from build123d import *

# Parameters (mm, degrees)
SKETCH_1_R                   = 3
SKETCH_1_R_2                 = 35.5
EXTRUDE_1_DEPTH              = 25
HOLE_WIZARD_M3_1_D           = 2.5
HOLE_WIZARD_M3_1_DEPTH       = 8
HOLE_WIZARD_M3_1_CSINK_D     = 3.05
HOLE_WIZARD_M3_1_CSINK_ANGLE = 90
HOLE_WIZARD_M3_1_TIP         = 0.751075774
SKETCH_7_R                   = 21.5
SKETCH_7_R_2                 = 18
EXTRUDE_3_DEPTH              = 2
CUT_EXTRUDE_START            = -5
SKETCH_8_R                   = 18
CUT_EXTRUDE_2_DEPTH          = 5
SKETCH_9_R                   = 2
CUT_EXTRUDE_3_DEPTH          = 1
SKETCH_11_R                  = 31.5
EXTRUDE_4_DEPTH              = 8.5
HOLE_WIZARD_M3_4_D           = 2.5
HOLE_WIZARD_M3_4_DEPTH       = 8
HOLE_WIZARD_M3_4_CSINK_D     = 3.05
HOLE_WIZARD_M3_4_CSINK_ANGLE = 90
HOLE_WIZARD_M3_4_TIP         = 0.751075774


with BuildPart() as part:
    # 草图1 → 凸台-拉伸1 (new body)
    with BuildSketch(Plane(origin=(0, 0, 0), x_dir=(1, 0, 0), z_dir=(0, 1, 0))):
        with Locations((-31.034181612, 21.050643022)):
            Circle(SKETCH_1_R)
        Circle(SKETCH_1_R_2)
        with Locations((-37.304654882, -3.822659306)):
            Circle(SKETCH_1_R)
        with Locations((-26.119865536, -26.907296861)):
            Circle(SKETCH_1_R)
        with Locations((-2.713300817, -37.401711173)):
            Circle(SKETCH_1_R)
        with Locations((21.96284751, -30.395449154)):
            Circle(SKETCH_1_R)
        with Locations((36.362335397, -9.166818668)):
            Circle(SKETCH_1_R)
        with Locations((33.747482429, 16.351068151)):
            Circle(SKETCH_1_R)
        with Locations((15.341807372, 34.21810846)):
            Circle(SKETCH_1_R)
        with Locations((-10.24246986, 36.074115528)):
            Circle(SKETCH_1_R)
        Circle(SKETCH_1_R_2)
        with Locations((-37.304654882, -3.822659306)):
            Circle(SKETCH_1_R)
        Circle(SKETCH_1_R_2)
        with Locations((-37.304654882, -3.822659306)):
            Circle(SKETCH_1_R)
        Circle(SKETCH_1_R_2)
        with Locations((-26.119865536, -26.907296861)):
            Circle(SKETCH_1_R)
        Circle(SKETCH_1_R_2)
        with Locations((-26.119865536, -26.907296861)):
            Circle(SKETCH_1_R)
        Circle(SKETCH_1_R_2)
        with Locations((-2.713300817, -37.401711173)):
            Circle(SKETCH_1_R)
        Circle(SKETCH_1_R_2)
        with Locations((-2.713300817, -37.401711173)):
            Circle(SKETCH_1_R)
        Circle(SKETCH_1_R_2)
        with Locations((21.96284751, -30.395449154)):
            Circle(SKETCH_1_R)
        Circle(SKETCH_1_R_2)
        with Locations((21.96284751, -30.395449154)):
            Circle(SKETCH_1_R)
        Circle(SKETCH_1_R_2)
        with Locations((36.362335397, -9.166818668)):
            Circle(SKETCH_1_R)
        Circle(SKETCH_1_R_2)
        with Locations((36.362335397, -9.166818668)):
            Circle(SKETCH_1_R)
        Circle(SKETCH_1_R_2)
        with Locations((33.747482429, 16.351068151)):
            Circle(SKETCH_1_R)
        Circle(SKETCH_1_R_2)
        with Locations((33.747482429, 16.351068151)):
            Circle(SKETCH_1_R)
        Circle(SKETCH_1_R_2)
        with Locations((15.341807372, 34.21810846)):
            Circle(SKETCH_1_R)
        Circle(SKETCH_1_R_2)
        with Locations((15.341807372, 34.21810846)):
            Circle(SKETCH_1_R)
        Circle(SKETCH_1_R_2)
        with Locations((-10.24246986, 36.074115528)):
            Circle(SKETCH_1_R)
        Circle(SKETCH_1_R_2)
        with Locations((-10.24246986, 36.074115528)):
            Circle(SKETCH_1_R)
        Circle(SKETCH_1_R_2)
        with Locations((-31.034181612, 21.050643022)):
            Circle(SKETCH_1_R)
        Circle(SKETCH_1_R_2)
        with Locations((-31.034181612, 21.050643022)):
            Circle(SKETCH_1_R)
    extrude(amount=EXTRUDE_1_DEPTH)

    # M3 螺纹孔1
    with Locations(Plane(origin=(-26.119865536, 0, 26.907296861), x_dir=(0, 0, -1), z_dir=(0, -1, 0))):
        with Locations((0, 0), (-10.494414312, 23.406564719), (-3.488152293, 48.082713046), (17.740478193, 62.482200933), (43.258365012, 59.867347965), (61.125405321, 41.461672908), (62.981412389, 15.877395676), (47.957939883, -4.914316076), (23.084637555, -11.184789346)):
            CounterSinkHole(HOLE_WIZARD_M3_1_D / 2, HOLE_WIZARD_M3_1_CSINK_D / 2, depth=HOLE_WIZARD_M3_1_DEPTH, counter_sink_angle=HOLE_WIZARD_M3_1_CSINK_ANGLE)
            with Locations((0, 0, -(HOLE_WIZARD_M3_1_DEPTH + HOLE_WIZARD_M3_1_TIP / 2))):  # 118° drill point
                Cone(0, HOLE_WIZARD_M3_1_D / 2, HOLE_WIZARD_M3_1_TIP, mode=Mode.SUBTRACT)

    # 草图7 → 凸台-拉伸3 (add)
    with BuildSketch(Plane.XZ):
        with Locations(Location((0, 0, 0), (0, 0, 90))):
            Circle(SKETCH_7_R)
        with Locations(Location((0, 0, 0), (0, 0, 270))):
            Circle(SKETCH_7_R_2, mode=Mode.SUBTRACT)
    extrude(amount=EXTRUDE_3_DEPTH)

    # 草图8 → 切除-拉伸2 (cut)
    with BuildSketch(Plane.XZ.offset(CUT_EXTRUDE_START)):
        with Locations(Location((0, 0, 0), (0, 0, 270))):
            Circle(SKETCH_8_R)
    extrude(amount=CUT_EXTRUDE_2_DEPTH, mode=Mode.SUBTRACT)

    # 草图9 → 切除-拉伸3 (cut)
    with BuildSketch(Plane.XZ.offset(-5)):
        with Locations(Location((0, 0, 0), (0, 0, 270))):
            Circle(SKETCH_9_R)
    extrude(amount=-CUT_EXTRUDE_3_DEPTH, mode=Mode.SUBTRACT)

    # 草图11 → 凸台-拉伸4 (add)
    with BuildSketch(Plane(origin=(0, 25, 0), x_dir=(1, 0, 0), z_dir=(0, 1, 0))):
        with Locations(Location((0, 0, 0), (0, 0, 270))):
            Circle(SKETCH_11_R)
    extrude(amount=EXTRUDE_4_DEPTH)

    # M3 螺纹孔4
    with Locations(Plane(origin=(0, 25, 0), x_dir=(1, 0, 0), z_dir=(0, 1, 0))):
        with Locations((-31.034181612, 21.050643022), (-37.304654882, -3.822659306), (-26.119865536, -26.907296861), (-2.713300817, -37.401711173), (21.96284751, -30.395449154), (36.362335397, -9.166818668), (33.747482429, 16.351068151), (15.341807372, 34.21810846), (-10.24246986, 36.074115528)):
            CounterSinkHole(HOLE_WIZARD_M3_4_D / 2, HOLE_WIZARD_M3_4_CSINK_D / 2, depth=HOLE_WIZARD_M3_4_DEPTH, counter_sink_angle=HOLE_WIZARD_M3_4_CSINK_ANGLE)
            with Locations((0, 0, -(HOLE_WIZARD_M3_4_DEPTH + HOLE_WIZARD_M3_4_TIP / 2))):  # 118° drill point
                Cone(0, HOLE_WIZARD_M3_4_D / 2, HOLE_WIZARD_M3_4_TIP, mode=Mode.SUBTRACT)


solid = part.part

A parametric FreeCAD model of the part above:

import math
import FreeCAD as App
import Part
import Sketcher
from FreeCAD import Vector

doc = App.newDocument("Part")
body = doc.addObject("PartDesign::Body", "Body")

# Sketch on XZ plane
sketch1 = body.newObject("Sketcher::SketchObject", "Sketch")
sketch1.AttachmentSupport = (doc.getObject("XZ_Plane"), [""])
sketch1.MapMode = "FlatFace"
sketch1.addGeometry([
    Part.ArcOfCircle(Part.Circle(Vector(0, 0, 0), Vector(0, 0, 1), 35.5), math.radians(-142.338826), math.radians(-109.362686)),  # 0
    Part.ArcOfCircle(Part.Circle(Vector(-31.034182, -21.050643, 0), Vector(0, 0, 1), 3), math.radians(80.607025), math.radians(347.691463)),  # 1
    Part.ArcOfCircle(Part.Circle(Vector(0, 0, 0), Vector(0, 0, 1), 35.5), math.radians(177.661174), math.radians(210.637314)),  # 2
    Part.ArcOfCircle(Part.Circle(Vector(-37.304655, 3.822659, 0), Vector(0, 0, 1), 3), math.radians(40.607025), math.radians(307.691463)),  # 3
    Part.ArcOfCircle(Part.Circle(Vector(0, 0, 0), Vector(0, 0, 1), 35.5), math.radians(137.661174), math.radians(170.637314)),  # 4
    Part.ArcOfCircle(Part.Circle(Vector(-26.119866, 26.907297, 0), Vector(0, 0, 1), 3), math.radians(0.607025), math.radians(267.691463)),  # 5
    Part.ArcOfCircle(Part.Circle(Vector(0, 0, 0), Vector(0, 0, 1), 35.5), math.radians(97.661174), math.radians(130.637314)),  # 6
    Part.ArcOfCircle(Part.Circle(Vector(-2.713301, 37.401711, 0), Vector(0, 0, 1), 3), math.radians(-39.392975), math.radians(227.691463)),  # 7
    Part.ArcOfCircle(Part.Circle(Vector(0, 0, 0), Vector(0, 0, 1), 35.5), math.radians(57.661174), math.radians(90.637314)),  # 8
    Part.ArcOfCircle(Part.Circle(Vector(21.962848, 30.395449, 0), Vector(0, 0, 1), 3), math.radians(-79.392975), math.radians(187.691463)),  # 9
    Part.ArcOfCircle(Part.Circle(Vector(0, 0, 0), Vector(0, 0, 1), 35.5), math.radians(17.661174), math.radians(50.637314)),  # 10
    Part.ArcOfCircle(Part.Circle(Vector(36.362335, 9.166819, 0), Vector(0, 0, 1), 3), math.radians(-119.392975), math.radians(147.691463)),  # 11
    Part.ArcOfCircle(Part.Circle(Vector(0, 0, 0), Vector(0, 0, 1), 35.5), math.radians(-22.338826), math.radians(10.637314)),  # 12
    Part.ArcOfCircle(Part.Circle(Vector(33.747482, -16.351068, 0), Vector(0, 0, 1), 3), math.radians(-159.392975), math.radians(107.691463)),  # 13
    Part.ArcOfCircle(Part.Circle(Vector(0, 0, 0), Vector(0, 0, 1), 35.5), math.radians(-62.338826), math.radians(-29.362686)),  # 14
    Part.ArcOfCircle(Part.Circle(Vector(15.341807, -34.218108, 0), Vector(0, 0, 1), 3), math.radians(160.607025), math.radians(427.691463)),  # 15
    Part.ArcOfCircle(Part.Circle(Vector(0, 0, 0), Vector(0, 0, 1), 35.5), math.radians(-102.338826), math.radians(-69.362686)),  # 16
    Part.ArcOfCircle(Part.Circle(Vector(-10.24247, -36.074116, 0), Vector(0, 0, 1), 3), math.radians(120.607025), math.radians(387.691463)),  # 17
], False)
sketch1.addConstraint([
    Sketcher.Constraint("Coincident", 0, 1, 1, 2),
    Sketcher.Constraint("Coincident", 1, 1, 2, 2),
    Sketcher.Constraint("Coincident", 2, 1, 3, 2),
    Sketcher.Constraint("Coincident", 3, 1, 4, 2),
    Sketcher.Constraint("Coincident", 4, 1, 5, 2),
    Sketcher.Constraint("Coincident", 5, 1, 6, 2),
    Sketcher.Constraint("Coincident", 6, 1, 7, 2),
    Sketcher.Constraint("Coincident", 7, 1, 8, 2),
    Sketcher.Constraint("Coincident", 8, 1, 9, 2),
    Sketcher.Constraint("Coincident", 9, 1, 10, 2),
    Sketcher.Constraint("Coincident", 10, 1, 11, 2),
    Sketcher.Constraint("Coincident", 11, 1, 12, 2),
    Sketcher.Constraint("Coincident", 12, 1, 13, 2),
    Sketcher.Constraint("Coincident", 13, 1, 14, 2),
    Sketcher.Constraint("Coincident", 14, 1, 15, 2),
    Sketcher.Constraint("Coincident", 15, 1, 16, 2),
    Sketcher.Constraint("Coincident", 16, 1, 17, 2),
    Sketcher.Constraint("Coincident", 17, 1, 0, 2),
    Sketcher.Constraint("Coincident", 0, 3, -1, 1),
    Sketcher.Constraint("Coincident", 2, 3, -1, 1),
    Sketcher.Constraint("Coincident", 4, 3, -1, 1),
    Sketcher.Constraint("Coincident", 6, 3, -1, 1),
    Sketcher.Constraint("Coincident", 8, 3, -1, 1),
    Sketcher.Constraint("Coincident", 10, 3, -1, 1),
    Sketcher.Constraint("Coincident", 12, 3, -1, 1),
    Sketcher.Constraint("Coincident", 14, 3, -1, 1),
    Sketcher.Constraint("Coincident", 16, 3, -1, 1),
    Sketcher.Constraint("Equal", 0, 2),
    Sketcher.Constraint("Equal", 1, 3),
    Sketcher.Constraint("Equal", 2, 4),
    Sketcher.Constraint("Equal", 3, 5),
    Sketcher.Constraint("Equal", 4, 6),
    Sketcher.Constraint("Equal", 5, 7),
    Sketcher.Constraint("Equal", 6, 8),
    Sketcher.Constraint("Equal", 7, 9),
    Sketcher.Constraint("Equal", 8, 10),
    Sketcher.Constraint("Equal", 9, 11),
    Sketcher.Constraint("Equal", 10, 12),
    Sketcher.Constraint("Equal", 11, 13),
    Sketcher.Constraint("Equal", 12, 14),
    Sketcher.Constraint("Equal", 13, 15),
    Sketcher.Constraint("Equal", 14, 16),
    Sketcher.Constraint("Equal", 15, 17),
    Sketcher.Constraint("Radius", 1, 3.0),
    Sketcher.Constraint("Radius", 0, 35.5),
    Sketcher.Constraint("DistanceX", 5, 3, 7, 1, 25.724999),
    Sketcher.Constraint("DistanceY", 9, 1, 7, 3, 9.955),
    Sketcher.Constraint("DistanceX", 15, 3, 12, 1, 17.494002),
    Sketcher.Constraint("DistanceX", 7, 3, -1, 1, 2.713301),
    Sketcher.Constraint("DistanceY", 3, 3, 3, 1, 1.952602),
    Sketcher.Constraint("DistanceX", 3, 1, 1, 3, 3.992899),
    Sketcher.Constraint("DistanceY", 12, 1, 10, 1, 24.263201),
    Sketcher.Constraint("DistanceY", 14, 1, 12, 1, 17.949701),
    Sketcher.Constraint("DistanceX", 16, 1, 15, 1, 20.098098),
    Sketcher.Constraint("DistanceX", 1, 3, -1, 1, 31.034182),
    Sketcher.Constraint("DistanceY", -1, 1, 7, 3, 37.401711),
    Sketcher.Constraint("DistanceY", -1, 1, 9, 3, 30.395449),
    Sketcher.Constraint("DistanceY", -1, 1, 11, 3, 9.166819),
    Sketcher.Constraint("DistanceY", 13, 3, -1, 1, 16.351068),
    Sketcher.Constraint("DistanceY", 15, 3, -1, 1, 34.218108),
    Sketcher.Constraint("DistanceX", 17, 3, -1, 1, 10.24247),
    Sketcher.Constraint("DistanceX", 0, 1, -1, 1, 28.10314),
    Sketcher.Constraint("DistanceY", -1, 1, 4, 1, 23.909732),
])
pad1 = body.newObject("PartDesign::Pad", "Pad")
pad1.Profile = sketch1
pad1.Length = 25
pad1.Reversed = True

# Sketch on XZ plane
sketch2 = body.newObject("Sketcher::SketchObject", "Sketch001")
sketch2.AttachmentSupport = (doc.getObject("XZ_Plane"), [""])
sketch2.MapMode = "FlatFace"
sketch2.addGeometry([
    Part.Circle(Vector(-26.119866, 26.907297, 0), Vector(0, 0, 1), 1.25),  # 0
    Part.Circle(Vector(-2.713301, 37.401711, 0), Vector(0, 0, 1), 1.25),  # 1
    Part.Circle(Vector(21.962848, 30.395449, 0), Vector(0, 0, 1), 1.25),  # 2
    Part.Circle(Vector(36.362335, 9.166819, 0), Vector(0, 0, 1), 1.25),  # 3
    Part.Circle(Vector(33.747482, -16.351068, 0), Vector(0, 0, 1), 1.25),  # 4
    Part.Circle(Vector(15.341807, -34.218108, 0), Vector(0, 0, 1), 1.25),  # 5
    Part.Circle(Vector(-10.24247, -36.074116, 0), Vector(0, 0, 1), 1.25),  # 6
    Part.Circle(Vector(-31.034182, -21.050643, 0), Vector(0, 0, 1), 1.25),  # 7
    Part.Circle(Vector(-37.304655, 3.822659, 0), Vector(0, 0, 1), 1.25),  # 8
], False)
sketch2.addConstraint([
    Sketcher.Constraint("Equal", 0, 1),
    Sketcher.Constraint("Equal", 1, 2),
    Sketcher.Constraint("Equal", 2, 3),
    Sketcher.Constraint("Equal", 3, 4),
    Sketcher.Constraint("Equal", 4, 5),
    Sketcher.Constraint("Equal", 5, 6),
    Sketcher.Constraint("Equal", 6, 7),
    Sketcher.Constraint("Equal", 7, 8),
    Sketcher.Constraint("Diameter", 0, 2.5),
    Sketcher.Constraint("DistanceX", 1, 3, -1, 1, 2.713301),
    Sketcher.Constraint("DistanceX", 0, 3, 3, 3, 62.482201),
    Sketcher.Constraint("DistanceY", -1, 1, 1, 3, 37.401711),
    Sketcher.Constraint("DistanceY", -1, 1, 2, 3, 30.395449),
    Sketcher.Constraint("DistanceY", -1, 1, 3, 3, 9.166819),
    Sketcher.Constraint("DistanceY", 4, 3, -1, 1, 16.351068),
    Sketcher.Constraint("DistanceY", 5, 3, -1, 1, 34.218108),
    Sketcher.Constraint("DistanceX", 6, 3, -1, 1, 10.24247),
    Sketcher.Constraint("DistanceX", 7, 3, -1, 1, 31.034182),
    Sketcher.Constraint("DistanceY", -1, 1, 8, 3, 3.822659),
    Sketcher.Constraint("DistanceX", 1, 3, 2, 3, 24.676148),
    Sketcher.Constraint("DistanceY", 3, 3, 0, 3, 17.740478),
    Sketcher.Constraint("DistanceX", 5, 3, 3, 3, 21.020528),
    Sketcher.Constraint("DistanceX", 5, 3, 2, 3, 6.62104),
    Sketcher.Constraint("DistanceY", 7, 3, 0, 3, 47.95794),
    Sketcher.Constraint("DistanceX", 8, 3, 0, 3, 11.184789),
    Sketcher.Constraint("DistanceX", -1, 1, 4, 3, 33.747482),
    Sketcher.Constraint("DistanceY", 6, 3, -1, 1, 36.074116),
])
doc.recompute()
hole = body.newObject("PartDesign::Hole", "Hole")
hole.Profile = sketch2
hole.ThreadType = "None"
hole.Diameter = 2.5
hole.DepthType = "Dimension"
hole.Depth = 8
hole.DrillPoint = "Angled"
hole.DrillPointAngle = 118
hole.HoleCutType = "Countersink"
hole.HoleCutDiameter = 3.05
hole.HoleCutCountersinkAngle = 90

# Sketch on XZ plane
sketch3 = body.newObject("Sketcher::SketchObject", "Sketch002")
sketch3.AttachmentSupport = (doc.getObject("XZ_Plane"), [""])
sketch3.MapMode = "FlatFace"
sketch3.addGeometry([
    Part.Circle(Vector(0, 0, 0), Vector(0, 0, 1), 21.5),
    Part.Circle(Vector(0, 0, 0), Vector(0, 0, 1), 18),
], False)
sketch3.addConstraint([
    Sketcher.Constraint("Coincident", 0, 3, -1, 1),
    Sketcher.Constraint("Coincident", 1, 3, -1, 1),
    Sketcher.Constraint("Diameter", 0, 43.0),
    Sketcher.Constraint("Diameter", 1, 36.0),
])
pad2 = body.newObject("PartDesign::Pad", "Pad001")
pad2.Profile = sketch3
pad2.Length = 2

# Sketch on XZ plane
sketch4 = body.newObject("Sketcher::SketchObject", "Sketch003")
sketch4.AttachmentSupport = (doc.getObject("XZ_Plane"), [""])
sketch4.MapMode = "FlatFace"
sketch4.AttachmentOffset = App.Placement(Vector(0, 0, -5), App.Rotation())
sketch4.addGeometry(Part.Circle(Vector(0, 0, 0), Vector(0, 0, 1), 18), False)
sketch4.addConstraint([
    Sketcher.Constraint("Coincident", 0, 3, -1, 1),
    Sketcher.Constraint("Diameter", 0, 36.0),
])
pocket1 = body.newObject("PartDesign::Pocket", "Pocket")
pocket1.Profile = sketch4
pocket1.Length = 5
pocket1.Reversed = True

# Sketch on XZ plane
sketch5 = body.newObject("Sketcher::SketchObject", "Sketch004")
sketch5.AttachmentSupport = (doc.getObject("XZ_Plane"), [""])
sketch5.MapMode = "FlatFace"
sketch5.AttachmentOffset = App.Placement(Vector(0, 0, -5), App.Rotation())
sketch5.addGeometry(Part.Circle(Vector(0, 0, 0), Vector(0, 0, 1), 2), False)
sketch5.addConstraint([
    Sketcher.Constraint("Coincident", 0, 3, -1, 1),
    Sketcher.Constraint("Diameter", 0, 4.0),
])
pocket2 = body.newObject("PartDesign::Pocket", "Pocket001")
pocket2.Profile = sketch5
pocket2.Length = 1

# Sketch on XZ plane
sketch6 = body.newObject("Sketcher::SketchObject", "Sketch005")
sketch6.AttachmentSupport = (doc.getObject("XZ_Plane"), [""])
sketch6.MapMode = "FlatFace"
sketch6.AttachmentOffset = App.Placement(Vector(0, 0, -25), App.Rotation())
sketch6.addGeometry(Part.Circle(Vector(0, 0, 0), Vector(0, 0, 1), 31.5), False)
sketch6.addConstraint([
    Sketcher.Constraint("Coincident", 0, 3, -1, 1),
    Sketcher.Constraint("Diameter", 0, 63.0),
])
pad3 = body.newObject("PartDesign::Pad", "Pad002")
pad3.Profile = sketch6
pad3.Length = 8.5
pad3.Reversed = True

# Sketch on XZ plane
sketch7 = body.newObject("Sketcher::SketchObject", "Sketch006")
sketch7.AttachmentSupport = (doc.getObject("XZ_Plane"), [""])
sketch7.MapMode = "FlatFace"
sketch7.AttachmentOffset = App.Placement(Vector(0, 0, -25), App.Rotation())
sketch7.addGeometry([
    Part.Circle(Vector(-31.034182, -21.050643, 0), Vector(0, 0, 1), 1.25),  # 0
    Part.Circle(Vector(-37.304655, 3.822659, 0), Vector(0, 0, 1), 1.25),  # 1
    Part.Circle(Vector(-26.119866, 26.907297, 0), Vector(0, 0, 1), 1.25),  # 2
    Part.Circle(Vector(-2.713301, 37.401711, 0), Vector(0, 0, 1), 1.25),  # 3
    Part.Circle(Vector(21.962848, 30.395449, 0), Vector(0, 0, 1), 1.25),  # 4
    Part.Circle(Vector(36.362335, 9.166819, 0), Vector(0, 0, 1), 1.25),  # 5
    Part.Circle(Vector(33.747482, -16.351068, 0), Vector(0, 0, 1), 1.25),  # 6
    Part.Circle(Vector(15.341807, -34.218108, 0), Vector(0, 0, 1), 1.25),  # 7
    Part.Circle(Vector(-10.24247, -36.074116, 0), Vector(0, 0, 1), 1.25),  # 8
], False)
sketch7.addConstraint([
    Sketcher.Constraint("Equal", 0, 1),
    Sketcher.Constraint("Equal", 1, 2),
    Sketcher.Constraint("Equal", 2, 3),
    Sketcher.Constraint("Equal", 3, 4),
    Sketcher.Constraint("Equal", 4, 5),
    Sketcher.Constraint("Equal", 5, 6),
    Sketcher.Constraint("Equal", 6, 7),
    Sketcher.Constraint("Equal", 7, 8),
    Sketcher.Constraint("Diameter", 0, 2.5),
    Sketcher.Constraint("DistanceX", 3, 3, -1, 1, 2.713301),
    Sketcher.Constraint("DistanceX", 2, 3, 5, 3, 62.482201),
    Sketcher.Constraint("DistanceX", 0, 3, -1, 1, 31.034182),
    Sketcher.Constraint("DistanceY", -1, 1, 1, 3, 3.822659),
    Sketcher.Constraint("DistanceY", -1, 1, 3, 3, 37.401711),
    Sketcher.Constraint("DistanceY", -1, 1, 4, 3, 30.395449),
    Sketcher.Constraint("DistanceY", -1, 1, 5, 3, 9.166819),
    Sketcher.Constraint("DistanceY", 6, 3, -1, 1, 16.351068),
    Sketcher.Constraint("DistanceY", 7, 3, -1, 1, 34.218108),
    Sketcher.Constraint("DistanceX", 8, 3, -1, 1, 10.24247),
    Sketcher.Constraint("DistanceX", 1, 3, 2, 3, 11.184789),
    Sketcher.Constraint("DistanceY", 0, 3, 2, 3, 47.95794),
    Sketcher.Constraint("DistanceX", 3, 3, 4, 3, 24.676148),
    Sketcher.Constraint("DistanceY", 5, 3, 2, 3, 17.740478),
    Sketcher.Constraint("DistanceX", 0, 3, 7, 3, 46.375989),
    Sketcher.Constraint("DistanceX", 7, 3, 5, 3, 21.020528),
    Sketcher.Constraint("DistanceX", -1, 1, 6, 3, 33.747482),
    Sketcher.Constraint("DistanceY", 8, 3, -1, 1, 36.074116),
])
doc.recompute()
hole2 = body.newObject("PartDesign::Hole", "Hole001")
hole2.Profile = sketch7
hole2.ThreadType = "None"
hole2.Diameter = 2.5
hole2.DepthType = "Dimension"
hole2.Depth = 8
hole2.DrillPoint = "Angled"
hole2.DrillPointAngle = 118
hole2.HoleCutType = "Countersink"
hole2.HoleCutDiameter = 3.05
hole2.HoleCutCountersinkAngle = 90
hole2.Reversed = True

doc.recompute()
